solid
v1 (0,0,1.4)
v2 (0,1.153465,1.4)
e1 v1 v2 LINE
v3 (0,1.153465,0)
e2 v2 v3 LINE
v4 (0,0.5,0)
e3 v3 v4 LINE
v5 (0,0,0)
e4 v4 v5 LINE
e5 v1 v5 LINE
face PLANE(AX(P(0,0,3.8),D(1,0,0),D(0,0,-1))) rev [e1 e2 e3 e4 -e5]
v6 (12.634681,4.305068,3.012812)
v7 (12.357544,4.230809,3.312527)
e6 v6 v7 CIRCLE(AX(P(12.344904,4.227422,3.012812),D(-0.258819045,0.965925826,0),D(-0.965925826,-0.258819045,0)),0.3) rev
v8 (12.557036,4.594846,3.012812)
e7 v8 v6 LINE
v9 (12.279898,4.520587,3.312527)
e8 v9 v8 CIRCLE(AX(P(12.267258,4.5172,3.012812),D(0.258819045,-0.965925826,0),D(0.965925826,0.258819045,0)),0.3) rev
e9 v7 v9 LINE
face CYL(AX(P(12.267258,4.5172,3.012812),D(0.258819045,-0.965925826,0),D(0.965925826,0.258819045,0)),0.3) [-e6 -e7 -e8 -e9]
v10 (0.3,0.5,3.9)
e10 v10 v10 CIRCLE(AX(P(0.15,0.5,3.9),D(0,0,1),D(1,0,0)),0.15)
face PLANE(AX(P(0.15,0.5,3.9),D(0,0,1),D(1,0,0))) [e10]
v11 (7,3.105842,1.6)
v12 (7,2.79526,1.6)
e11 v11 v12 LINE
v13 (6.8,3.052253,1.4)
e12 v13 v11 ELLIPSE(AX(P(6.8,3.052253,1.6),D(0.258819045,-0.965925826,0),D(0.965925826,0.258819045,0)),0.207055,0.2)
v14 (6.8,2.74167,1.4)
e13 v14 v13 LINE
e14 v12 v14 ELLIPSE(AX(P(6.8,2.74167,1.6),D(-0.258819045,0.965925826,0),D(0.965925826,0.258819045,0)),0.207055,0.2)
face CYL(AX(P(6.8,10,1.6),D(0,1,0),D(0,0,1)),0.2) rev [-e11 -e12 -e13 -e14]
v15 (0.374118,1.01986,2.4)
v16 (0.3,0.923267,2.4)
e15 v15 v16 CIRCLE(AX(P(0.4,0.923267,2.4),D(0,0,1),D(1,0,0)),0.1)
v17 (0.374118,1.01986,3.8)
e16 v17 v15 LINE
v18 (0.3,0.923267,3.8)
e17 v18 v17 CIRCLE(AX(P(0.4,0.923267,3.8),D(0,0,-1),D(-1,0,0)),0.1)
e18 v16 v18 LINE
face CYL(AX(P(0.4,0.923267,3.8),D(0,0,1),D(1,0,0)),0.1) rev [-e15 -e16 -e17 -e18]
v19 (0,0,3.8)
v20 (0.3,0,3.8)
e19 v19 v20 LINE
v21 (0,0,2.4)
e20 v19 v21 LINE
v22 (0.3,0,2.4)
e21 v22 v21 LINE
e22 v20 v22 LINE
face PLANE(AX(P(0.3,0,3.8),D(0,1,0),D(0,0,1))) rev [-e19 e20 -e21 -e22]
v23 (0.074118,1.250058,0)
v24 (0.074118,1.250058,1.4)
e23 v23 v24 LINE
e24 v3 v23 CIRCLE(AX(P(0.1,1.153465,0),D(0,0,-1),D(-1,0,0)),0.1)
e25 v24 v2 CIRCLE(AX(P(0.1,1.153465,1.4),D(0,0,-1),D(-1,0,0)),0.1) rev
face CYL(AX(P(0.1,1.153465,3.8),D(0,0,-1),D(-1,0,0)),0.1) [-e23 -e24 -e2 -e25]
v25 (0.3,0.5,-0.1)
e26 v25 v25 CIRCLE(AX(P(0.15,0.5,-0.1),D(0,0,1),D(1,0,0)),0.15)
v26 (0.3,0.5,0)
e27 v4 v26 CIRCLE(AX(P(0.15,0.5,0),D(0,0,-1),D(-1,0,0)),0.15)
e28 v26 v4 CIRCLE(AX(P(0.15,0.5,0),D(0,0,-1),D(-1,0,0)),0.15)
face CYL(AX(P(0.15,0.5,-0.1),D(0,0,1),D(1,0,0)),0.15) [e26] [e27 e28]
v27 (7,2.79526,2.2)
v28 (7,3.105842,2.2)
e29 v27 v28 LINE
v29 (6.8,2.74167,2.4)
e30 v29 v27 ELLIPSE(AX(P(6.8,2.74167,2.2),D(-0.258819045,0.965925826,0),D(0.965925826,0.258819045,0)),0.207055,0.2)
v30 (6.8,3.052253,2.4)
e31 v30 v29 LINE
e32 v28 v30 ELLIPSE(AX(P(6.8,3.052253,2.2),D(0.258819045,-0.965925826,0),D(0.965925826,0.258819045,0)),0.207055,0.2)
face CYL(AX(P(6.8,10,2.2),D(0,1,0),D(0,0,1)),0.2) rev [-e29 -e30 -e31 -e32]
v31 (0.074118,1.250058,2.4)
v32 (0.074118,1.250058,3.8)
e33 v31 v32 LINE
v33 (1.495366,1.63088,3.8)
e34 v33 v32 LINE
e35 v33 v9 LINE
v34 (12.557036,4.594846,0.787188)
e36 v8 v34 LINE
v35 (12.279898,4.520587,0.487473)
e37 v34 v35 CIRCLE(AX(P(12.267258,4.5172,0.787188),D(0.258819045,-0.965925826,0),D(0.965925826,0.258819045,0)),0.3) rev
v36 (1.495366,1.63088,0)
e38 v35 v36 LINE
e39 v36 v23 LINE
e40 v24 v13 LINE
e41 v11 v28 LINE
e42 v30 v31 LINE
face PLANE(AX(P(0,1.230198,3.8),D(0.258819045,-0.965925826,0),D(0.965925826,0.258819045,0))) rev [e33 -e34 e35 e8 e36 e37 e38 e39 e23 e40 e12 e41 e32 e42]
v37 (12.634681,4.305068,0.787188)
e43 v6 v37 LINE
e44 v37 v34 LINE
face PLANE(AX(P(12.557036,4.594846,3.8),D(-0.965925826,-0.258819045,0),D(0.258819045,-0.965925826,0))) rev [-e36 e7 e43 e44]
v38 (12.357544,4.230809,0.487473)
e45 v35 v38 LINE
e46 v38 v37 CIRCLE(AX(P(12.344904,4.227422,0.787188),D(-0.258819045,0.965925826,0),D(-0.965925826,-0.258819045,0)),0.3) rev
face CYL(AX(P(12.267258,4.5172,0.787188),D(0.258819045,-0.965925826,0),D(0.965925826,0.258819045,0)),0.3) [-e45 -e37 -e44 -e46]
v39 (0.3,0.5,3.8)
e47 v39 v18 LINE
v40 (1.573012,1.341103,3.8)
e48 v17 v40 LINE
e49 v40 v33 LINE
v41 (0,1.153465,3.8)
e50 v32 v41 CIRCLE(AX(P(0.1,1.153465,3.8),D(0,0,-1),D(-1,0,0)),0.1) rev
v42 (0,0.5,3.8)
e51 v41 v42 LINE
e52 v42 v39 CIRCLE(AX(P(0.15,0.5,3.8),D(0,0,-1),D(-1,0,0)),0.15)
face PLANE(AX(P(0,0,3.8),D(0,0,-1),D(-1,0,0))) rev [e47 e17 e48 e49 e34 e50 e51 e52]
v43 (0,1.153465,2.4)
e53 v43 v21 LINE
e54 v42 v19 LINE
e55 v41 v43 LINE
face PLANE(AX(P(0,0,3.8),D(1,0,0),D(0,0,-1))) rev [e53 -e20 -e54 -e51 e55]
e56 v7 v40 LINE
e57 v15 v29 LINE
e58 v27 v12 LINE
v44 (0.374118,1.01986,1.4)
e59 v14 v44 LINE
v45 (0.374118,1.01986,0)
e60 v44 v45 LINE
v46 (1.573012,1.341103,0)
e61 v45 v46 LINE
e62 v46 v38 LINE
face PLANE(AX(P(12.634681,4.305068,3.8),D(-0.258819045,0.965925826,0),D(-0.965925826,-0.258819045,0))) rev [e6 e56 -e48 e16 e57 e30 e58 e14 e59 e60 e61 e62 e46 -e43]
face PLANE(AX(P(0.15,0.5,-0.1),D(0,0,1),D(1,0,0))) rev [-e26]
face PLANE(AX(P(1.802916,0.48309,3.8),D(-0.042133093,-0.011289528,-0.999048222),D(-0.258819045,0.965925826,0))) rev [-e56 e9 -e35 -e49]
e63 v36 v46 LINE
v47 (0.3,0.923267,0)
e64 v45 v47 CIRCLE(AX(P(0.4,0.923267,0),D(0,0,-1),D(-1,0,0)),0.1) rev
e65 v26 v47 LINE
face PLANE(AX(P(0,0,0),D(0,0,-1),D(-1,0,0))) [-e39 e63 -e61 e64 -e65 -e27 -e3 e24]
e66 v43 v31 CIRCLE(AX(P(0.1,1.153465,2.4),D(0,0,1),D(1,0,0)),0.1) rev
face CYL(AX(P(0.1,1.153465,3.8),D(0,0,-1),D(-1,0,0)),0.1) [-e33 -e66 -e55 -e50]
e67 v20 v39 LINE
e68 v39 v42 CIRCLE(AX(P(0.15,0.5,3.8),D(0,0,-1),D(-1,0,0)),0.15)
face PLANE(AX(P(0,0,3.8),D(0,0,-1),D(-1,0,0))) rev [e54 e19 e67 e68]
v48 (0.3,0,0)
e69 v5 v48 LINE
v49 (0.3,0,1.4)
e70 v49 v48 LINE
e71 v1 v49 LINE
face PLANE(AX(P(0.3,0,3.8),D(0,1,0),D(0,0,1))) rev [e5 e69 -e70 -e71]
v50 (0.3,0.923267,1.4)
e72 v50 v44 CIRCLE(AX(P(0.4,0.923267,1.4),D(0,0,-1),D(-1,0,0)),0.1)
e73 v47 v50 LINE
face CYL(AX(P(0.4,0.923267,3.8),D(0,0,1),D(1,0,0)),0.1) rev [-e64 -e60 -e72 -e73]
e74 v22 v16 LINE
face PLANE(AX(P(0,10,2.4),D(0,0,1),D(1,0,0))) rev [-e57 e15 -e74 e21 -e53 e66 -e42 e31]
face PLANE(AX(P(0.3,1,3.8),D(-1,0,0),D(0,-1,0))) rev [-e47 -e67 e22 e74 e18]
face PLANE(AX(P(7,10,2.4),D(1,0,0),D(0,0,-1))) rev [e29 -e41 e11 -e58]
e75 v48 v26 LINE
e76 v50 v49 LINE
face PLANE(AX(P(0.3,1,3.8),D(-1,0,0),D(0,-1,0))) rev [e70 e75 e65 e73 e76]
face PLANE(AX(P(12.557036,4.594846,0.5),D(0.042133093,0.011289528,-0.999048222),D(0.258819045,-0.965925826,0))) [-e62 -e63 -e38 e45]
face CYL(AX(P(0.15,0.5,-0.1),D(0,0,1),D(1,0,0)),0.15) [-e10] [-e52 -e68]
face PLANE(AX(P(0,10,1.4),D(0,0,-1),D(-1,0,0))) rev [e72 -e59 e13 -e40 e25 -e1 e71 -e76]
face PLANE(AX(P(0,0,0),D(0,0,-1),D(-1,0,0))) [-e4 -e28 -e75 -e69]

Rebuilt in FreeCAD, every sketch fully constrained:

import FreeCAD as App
import Part
import Sketcher
from FreeCAD import Vector
Q = App.Units.Quantity


def edges_at(feature, points):
    """Names of the edges that pass closest to the given points."""
    edges = feature.Shape.Edges
    near = lambda p: min(range(len(edges)), key=lambda i: edges[i].distToShape(Part.Vertex(*p))[0])
    return sorted({f"Edge{near(p) + 1}" for p in points})


def add_polygon(sketch, points):
    """Adds a closed chain of lines whose ends are joined by coincident constraints."""
    first, n = sketch.GeometryCount, len(points)
    for a, b in zip(points, points[1:] + points[:1]):
        sketch.addGeometry(Part.LineSegment(App.Vector(*a, 0), App.Vector(*b, 0)), False)
    for i in range(n):
        sketch.addConstraint(Sketcher.Constraint("Coincident", first + i, 2, first + (i + 1) % n, 1))

doc = App.newDocument("Part")
body = doc.addObject("PartDesign::Body", "Body")

# Sketch on XY plane
sketch1 = body.newObject("Sketcher::SketchObject", "Sketch")
sketch1.AttachmentSupport = (doc.getObject("XY_Plane"), [""])
sketch1.MapMode = "FlatFace"
add_polygon(sketch1, [(0, 1.230198), (0, 0), (0.3, 0), (0.3, 1), (12.634681, 4.305068), (12.557036, 4.594846)])  # lines 0-5
sketch1.addConstraint([
    Sketcher.Constraint("Vertical", 0),
    Sketcher.Constraint("Horizontal", 1),
    Sketcher.Constraint("Vertical", 2),
    Sketcher.Constraint("Coincident", 0, 2, -1, 1),
    Sketcher.Constraint("Perpendicular", 3, 4),
    Sketcher.Constraint("Perpendicular", 4, 5),
    Sketcher.Constraint("DistanceY", 2, 1, 2, 2, Q("1 mm")),
    Sketcher.Constraint("Angle", 3, Q("15 deg")),
    Sketcher.Constraint("Distance", 5, Q("13 mm")),
    Sketcher.Constraint("DistanceX", 1, 1, 1, 2, Q("0.3 mm")),
    Sketcher.Constraint("Distance", 4, Q("0.3 mm")),
])
pad1 = body.newObject("PartDesign::Pad", "Pad")
pad1.Profile = sketch1
pad1.Length = 3.8
doc.recompute()

chamfer = body.newObject("PartDesign::Chamfer", "Chamfer")
chamfer.Base = (pad1, edges_at(pad1, [(12.596, 4.45, 3.8), (12.596, 4.45, 0)]))
chamfer.ChamferType = "Two distances"
chamfer.Size = 0.5
chamfer.Size2 = 11.451883

# Sketch on XY plane
sketch2 = body.newObject("Sketcher::SketchObject", "Sketch001")
sketch2.AttachmentSupport = (doc.getObject("XY_Plane"), [""])
sketch2.MapMode = "FlatFace"
sketch2.AttachmentOffset = App.Placement(Vector(0, 0, 3.8), App.Rotation())
sketch2.addGeometry(Part.Circle(Vector(0.15, 0.5, 0), Vector(0, 0, 1), 0.15), False)
sketch2.addConstraint([
    Sketcher.Constraint("Diameter", 0, Q("0.3 mm")),
    Sketcher.Constraint("DistanceY", -1, 1, 0, 3, Q("0.5 mm")),
    Sketcher.Constraint("DistanceX", -1, 1, 0, 3, Q("0.15 mm")),
])
pad2 = body.newObject("PartDesign::Pad", "Pad001")
pad2.Profile = sketch2
pad2.Type = "TwoLengths"
pad2.Length = 0.1
pad2.Length2 = 3.9

# Sketch on XZ plane
sketch3 = body.newObject("Sketcher::SketchObject", "Sketch002")
sketch3.AttachmentSupport = (doc.getObject("XZ_Plane"), [""])
sketch3.MapMode = "FlatFace"
add_polygon(sketch3, [(0, 2.4), (0, 1.4), (7, 1.4), (7, 2.4)])  # lines 0-3
sketch3.addConstraint([
    Sketcher.Constraint("Vertical", 0),
    Sketcher.Constraint("Horizontal", 1),
    Sketcher.Constraint("Vertical", 2),
    Sketcher.Constraint("Horizontal", 3),
    Sketcher.Constraint("PointOnObject", 0, 2, -2),
    Sketcher.Constraint("DistanceX", 1, 1, 1, 2, Q("7 mm")),
    Sketcher.Constraint("DistanceY", 0, 2, 0, 1, Q("1 mm")),
    Sketcher.Constraint("DistanceY", -1, 1, 0, 2, Q("1.4 mm")),
])
pocket1 = body.newObject("PartDesign::Pocket", "Pocket")
pocket1.Profile = sketch3
pocket1.Length = 10
doc.recompute()

fillet = body.newObject("PartDesign::Fillet", "Fillet")
fillet.Base = (pocket1, edges_at(pocket1, [
    (0, 1.23, 3.1),
    (0.3, 1, 3.1),
    (0, 1.23, 0.7),
    (0.3, 1, 0.7),
]))
fillet.Radius = 0.1
doc.recompute()

fillet2 = body.newObject("PartDesign::Fillet", "Fillet001")
fillet2.Base = (fillet, edges_at(fillet, [(12.596, 4.45, 0.5), (12.596, 4.45, 3.3)]))
fillet2.Radius = 0.3
doc.recompute()

fillet3 = body.newObject("PartDesign::Fillet", "Fillet002")
fillet3.Base = (fillet2, edges_at(fillet2, [(7, 2.951, 2.4), (7, 2.951, 1.4)]))
fillet3.Radius = 0.2

doc.recompute()
